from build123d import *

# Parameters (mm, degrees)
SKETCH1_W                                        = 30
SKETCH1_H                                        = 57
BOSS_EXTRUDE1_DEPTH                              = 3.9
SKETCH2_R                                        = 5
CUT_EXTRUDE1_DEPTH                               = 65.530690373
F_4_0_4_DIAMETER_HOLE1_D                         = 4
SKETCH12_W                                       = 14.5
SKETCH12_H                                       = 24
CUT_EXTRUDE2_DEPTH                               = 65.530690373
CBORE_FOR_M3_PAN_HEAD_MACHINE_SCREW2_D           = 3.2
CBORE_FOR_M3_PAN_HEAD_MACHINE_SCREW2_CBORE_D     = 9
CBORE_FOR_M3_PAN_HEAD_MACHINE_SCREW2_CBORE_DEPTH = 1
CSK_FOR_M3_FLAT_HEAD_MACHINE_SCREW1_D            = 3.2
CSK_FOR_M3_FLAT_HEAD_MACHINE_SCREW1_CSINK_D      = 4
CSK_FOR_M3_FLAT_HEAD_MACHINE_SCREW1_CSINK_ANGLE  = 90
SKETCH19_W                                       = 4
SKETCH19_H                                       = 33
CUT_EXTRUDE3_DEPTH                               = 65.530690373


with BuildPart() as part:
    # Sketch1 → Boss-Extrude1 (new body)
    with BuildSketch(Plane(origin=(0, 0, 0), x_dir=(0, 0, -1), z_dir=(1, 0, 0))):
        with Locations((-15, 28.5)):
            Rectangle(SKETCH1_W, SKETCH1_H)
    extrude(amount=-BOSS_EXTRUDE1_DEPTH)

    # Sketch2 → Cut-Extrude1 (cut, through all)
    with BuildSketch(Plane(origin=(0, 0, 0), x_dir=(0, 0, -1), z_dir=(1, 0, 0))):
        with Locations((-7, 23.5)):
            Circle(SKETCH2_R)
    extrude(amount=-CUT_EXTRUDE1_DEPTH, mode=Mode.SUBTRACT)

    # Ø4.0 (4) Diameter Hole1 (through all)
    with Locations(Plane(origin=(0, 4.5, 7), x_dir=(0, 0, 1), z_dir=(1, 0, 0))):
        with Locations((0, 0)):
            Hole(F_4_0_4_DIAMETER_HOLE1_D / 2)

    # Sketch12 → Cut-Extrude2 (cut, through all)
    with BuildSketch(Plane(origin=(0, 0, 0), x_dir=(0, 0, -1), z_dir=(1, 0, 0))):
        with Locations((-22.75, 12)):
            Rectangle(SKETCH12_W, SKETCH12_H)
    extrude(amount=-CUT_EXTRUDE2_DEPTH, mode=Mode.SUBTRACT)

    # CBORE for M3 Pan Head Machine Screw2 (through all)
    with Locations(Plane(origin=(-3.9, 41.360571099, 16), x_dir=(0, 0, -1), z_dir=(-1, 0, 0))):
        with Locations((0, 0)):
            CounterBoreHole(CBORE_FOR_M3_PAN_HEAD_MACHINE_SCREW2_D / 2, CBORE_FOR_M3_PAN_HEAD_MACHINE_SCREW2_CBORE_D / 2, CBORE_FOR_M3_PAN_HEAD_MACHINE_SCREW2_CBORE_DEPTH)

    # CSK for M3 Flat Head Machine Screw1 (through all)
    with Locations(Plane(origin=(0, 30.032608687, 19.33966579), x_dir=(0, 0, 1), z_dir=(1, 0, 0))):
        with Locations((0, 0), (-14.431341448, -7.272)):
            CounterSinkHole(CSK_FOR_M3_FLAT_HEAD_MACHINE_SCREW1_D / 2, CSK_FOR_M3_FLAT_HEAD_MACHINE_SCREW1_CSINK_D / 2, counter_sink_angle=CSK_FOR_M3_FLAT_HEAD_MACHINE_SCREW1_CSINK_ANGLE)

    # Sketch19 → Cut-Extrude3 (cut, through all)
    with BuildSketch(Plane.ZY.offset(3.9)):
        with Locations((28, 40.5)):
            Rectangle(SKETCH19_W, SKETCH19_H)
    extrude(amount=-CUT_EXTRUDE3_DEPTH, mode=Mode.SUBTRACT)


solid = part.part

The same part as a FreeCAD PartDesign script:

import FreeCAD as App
import Part
import Sketcher

V = App.Vector
Q = App.Units.Quantity


def add_polygon(sketch, points):
    """Adds a closed chain of lines whose ends are joined by coincident constraints."""
    first, n = sketch.GeometryCount, len(points)
    for a, b in zip(points, points[1:] + points[:1]):
        sketch.addGeometry(Part.LineSegment(App.Vector(*a, 0), App.Vector(*b, 0)), False)
    for i in range(n):
        sketch.addConstraint(Sketcher.Constraint("Coincident", first + i, 2, first + (i + 1) % n, 1))

doc = App.newDocument("Part")
body = doc.addObject("PartDesign::Body", "Body")

sketch1 = body.newObject("Sketcher::SketchObject", "Sketch")
sketch1.AttachmentSupport = (doc.getObject("YZ_Plane"), [""])
sketch1.MapMode = "FlatFace"
add_polygon(sketch1, [(57, 30), (0, 30), (0, 0), (57, 0)])
sketch1.addConstraint([
    Sketcher.Constraint("Horizontal", 0),
    Sketcher.Constraint("Vertical", 1),
    Sketcher.Constraint("Horizontal", 2),
    Sketcher.Constraint("Vertical", 3),
    Sketcher.Constraint("Coincident", 1, 2, -1, 1),
    Sketcher.Constraint("DistanceX", 0, 2, 0, 1, Q("57 mm")),
    Sketcher.Constraint("DistanceY", 1, 2, 1, 1, Q("30 mm")),
])
pad1 = body.newObject("PartDesign::Pad", "Pad")
pad1.Profile = sketch1
pad1.Length = 3.9
pad1.Reversed = True

sketch2 = body.newObject("Sketcher::SketchObject", "Sketch001")
sketch2.AttachmentSupport = (doc.getObject("YZ_Plane"), [""])
sketch2.MapMode = "FlatFace"
sketch2.addGeometry(Part.Circle(V(24, 7, 0), V(0, 0, 1), 5), False)
sketch2.addConstraint([
    Sketcher.Constraint("Diameter", 0, Q("10 mm")),
    Sketcher.Constraint("DistanceY", -1, 1, 0, 3, Q("7 mm")),
    Sketcher.Constraint("DistanceX", -1, 1, 0, 3, Q("23.5 mm")),
])
pocket1 = body.newObject("PartDesign::Pocket", "Pocket")
pocket1.Profile = sketch2
pocket1.Type = "ThroughAll"

sketch3 = body.newObject("Sketcher::SketchObject", "Sketch002")
sketch3.AttachmentSupport = (doc.getObject("YZ_Plane"), [""])
sketch3.MapMode = "FlatFace"
sketch3.addGeometry(Part.Circle(V(4.5, 7, 0), V(0, 0, 1), 2), False)
sketch3.addConstraint([
    Sketcher.Constraint("Diameter", 0, Q("4 mm")),
    Sketcher.Constraint("DistanceY", -1, 1, 0, 3, Q("7 mm")),
    Sketcher.Constraint("DistanceX", -1, 1, 0, 3, Q("4.5 mm")),
])
doc.recompute()
hole = body.newObject("PartDesign::Hole", "Hole")
hole.Profile = sketch3
hole.ThreadType = "None"
hole.Diameter = 4
hole.DepthType = "ThroughAll"

sketch4 = body.newObject("Sketcher::SketchObject", "Sketch003")
sketch4.AttachmentSupport = (doc.getObject("YZ_Plane"), [""])
sketch4.MapMode = "FlatFace"
add_polygon(sketch4, [(24, 30), (0, 30), (0, 16), (24, 16)])
sketch4.addConstraint([
    Sketcher.Constraint("Horizontal", 0),
    Sketcher.Constraint("Vertical", 1),
    Sketcher.Constraint("Horizontal", 2),
    Sketcher.Constraint("Vertical", 3),
    Sketcher.Constraint("PointOnObject", 0, 2, -2),
    Sketcher.Constraint("DistanceX", 0, 2, 0, 1, Q("24 mm")),
    Sketcher.Constraint("DistanceY", 1, 2, 1, 1, Q("14.5 mm")),
    Sketcher.Constraint("DistanceY", -1, 1, 0, 2, Q("30 mm")),
])
pocket2 = body.newObject("PartDesign::Pocket", "Pocket001")
pocket2.Profile = sketch4
pocket2.Type = "ThroughAll"

sketch5 = body.newObject("Sketcher::SketchObject", "Sketch004")
sketch5.AttachmentSupport = (doc.getObject("YZ_Plane"), [""])
sketch5.MapMode = "FlatFace"
sketch5.AttachmentOffset = App.Placement(V(0, 0, -3.9), App.Rotation())
sketch5.addGeometry(Part.Circle(V(41.4, 16, 0), V(0, 0, 1), 1.6), False)
sketch5.addConstraint([
    Sketcher.Constraint("Diameter", 0, Q("3.2 mm")),
    Sketcher.Constraint("DistanceY", -1, 1, 0, 3, Q("16 mm")),
    Sketcher.Constraint("DistanceX", -1, 1, 0, 3, Q("41.360571 mm")),
])
doc.recompute()
hole2 = body.newObject("PartDesign::Hole", "Hole001")
hole2.Profile = sketch5
hole2.ThreadType = "None"
hole2.Diameter = 3.2
hole2.DepthType = "ThroughAll"
hole2.HoleCutType = "Counterbore"
hole2.HoleCutDiameter = 9
hole2.HoleCutDepth = 1
hole2.Reversed = True

sketch6 = body.newObject("Sketcher::SketchObject", "Sketch005")
sketch6.AttachmentSupport = (doc.getObject("YZ_Plane"), [""])
sketch6.MapMode = "FlatFace"
sketch6.addGeometry([
    Part.Circle(V(30, 19.3, 0), V(0, 0, 1), 1.6),
    Part.Circle(V(37.3, 4.9, 0), V(0, 0, 1), 1.6),
], False)
sketch6.addConstraint([
    Sketcher.Constraint("Equal", 0, 1),
    Sketcher.Constraint("Diameter", 0, Q("3.2 mm")),
    Sketcher.Constraint("DistanceX", 0, 3, 1, 3, Q("7.272 mm")),
    Sketcher.Constraint("DistanceX", -1, 1, 0, 3, Q("30.032609 mm")),
    Sketcher.Constraint("DistanceY", 1, 3, 0, 3, Q("14.431341 mm")),
    Sketcher.Constraint("DistanceY", -1, 1, 0, 3, Q("19.339666 mm")),
])
doc.recompute()
hole3 = body.newObject("PartDesign::Hole", "Hole002")
hole3.Profile = sketch6
hole3.ThreadType = "None"
hole3.Diameter = 3.2
hole3.DepthType = "ThroughAll"
hole3.HoleCutType = "Countersink"
hole3.HoleCutDiameter = 4
hole3.HoleCutCountersinkAngle = 90

sketch7 = body.newObject("Sketcher::SketchObject", "Sketch006")
sketch7.AttachmentSupport = (doc.getObject("YZ_Plane"), [""])
sketch7.MapMode = "FlatFace"
sketch7.AttachmentOffset = App.Placement(V(0, 0, -3.9), App.Rotation())
add_polygon(sketch7, [(57, 26), (24, 26), (24, 30), (57, 30)])
sketch7.addConstraint([
    Sketcher.Constraint("Horizontal", 0),
    Sketcher.Constraint("Vertical", 1),
    Sketcher.Constraint("Horizontal", 2),
    Sketcher.Constraint("Vertical", 3),
    Sketcher.Constraint("DistanceX", 0, 2, 0, 1, Q("33 mm")),
    Sketcher.Constraint("DistanceY", 1, 1, 1, 2, Q("4 mm")),
    Sketcher.Constraint("DistanceX", -1, 1, 0, 2, Q("24 mm")),
    Sketcher.Constraint("DistanceY", -1, 1, 0, 2, Q("26 mm")),
])
pocket3 = body.newObject("PartDesign::Pocket", "Pocket002")
pocket3.Profile = sketch7
pocket3.Type = "ThroughAll"
pocket3.Reversed = True

doc.recompute()
